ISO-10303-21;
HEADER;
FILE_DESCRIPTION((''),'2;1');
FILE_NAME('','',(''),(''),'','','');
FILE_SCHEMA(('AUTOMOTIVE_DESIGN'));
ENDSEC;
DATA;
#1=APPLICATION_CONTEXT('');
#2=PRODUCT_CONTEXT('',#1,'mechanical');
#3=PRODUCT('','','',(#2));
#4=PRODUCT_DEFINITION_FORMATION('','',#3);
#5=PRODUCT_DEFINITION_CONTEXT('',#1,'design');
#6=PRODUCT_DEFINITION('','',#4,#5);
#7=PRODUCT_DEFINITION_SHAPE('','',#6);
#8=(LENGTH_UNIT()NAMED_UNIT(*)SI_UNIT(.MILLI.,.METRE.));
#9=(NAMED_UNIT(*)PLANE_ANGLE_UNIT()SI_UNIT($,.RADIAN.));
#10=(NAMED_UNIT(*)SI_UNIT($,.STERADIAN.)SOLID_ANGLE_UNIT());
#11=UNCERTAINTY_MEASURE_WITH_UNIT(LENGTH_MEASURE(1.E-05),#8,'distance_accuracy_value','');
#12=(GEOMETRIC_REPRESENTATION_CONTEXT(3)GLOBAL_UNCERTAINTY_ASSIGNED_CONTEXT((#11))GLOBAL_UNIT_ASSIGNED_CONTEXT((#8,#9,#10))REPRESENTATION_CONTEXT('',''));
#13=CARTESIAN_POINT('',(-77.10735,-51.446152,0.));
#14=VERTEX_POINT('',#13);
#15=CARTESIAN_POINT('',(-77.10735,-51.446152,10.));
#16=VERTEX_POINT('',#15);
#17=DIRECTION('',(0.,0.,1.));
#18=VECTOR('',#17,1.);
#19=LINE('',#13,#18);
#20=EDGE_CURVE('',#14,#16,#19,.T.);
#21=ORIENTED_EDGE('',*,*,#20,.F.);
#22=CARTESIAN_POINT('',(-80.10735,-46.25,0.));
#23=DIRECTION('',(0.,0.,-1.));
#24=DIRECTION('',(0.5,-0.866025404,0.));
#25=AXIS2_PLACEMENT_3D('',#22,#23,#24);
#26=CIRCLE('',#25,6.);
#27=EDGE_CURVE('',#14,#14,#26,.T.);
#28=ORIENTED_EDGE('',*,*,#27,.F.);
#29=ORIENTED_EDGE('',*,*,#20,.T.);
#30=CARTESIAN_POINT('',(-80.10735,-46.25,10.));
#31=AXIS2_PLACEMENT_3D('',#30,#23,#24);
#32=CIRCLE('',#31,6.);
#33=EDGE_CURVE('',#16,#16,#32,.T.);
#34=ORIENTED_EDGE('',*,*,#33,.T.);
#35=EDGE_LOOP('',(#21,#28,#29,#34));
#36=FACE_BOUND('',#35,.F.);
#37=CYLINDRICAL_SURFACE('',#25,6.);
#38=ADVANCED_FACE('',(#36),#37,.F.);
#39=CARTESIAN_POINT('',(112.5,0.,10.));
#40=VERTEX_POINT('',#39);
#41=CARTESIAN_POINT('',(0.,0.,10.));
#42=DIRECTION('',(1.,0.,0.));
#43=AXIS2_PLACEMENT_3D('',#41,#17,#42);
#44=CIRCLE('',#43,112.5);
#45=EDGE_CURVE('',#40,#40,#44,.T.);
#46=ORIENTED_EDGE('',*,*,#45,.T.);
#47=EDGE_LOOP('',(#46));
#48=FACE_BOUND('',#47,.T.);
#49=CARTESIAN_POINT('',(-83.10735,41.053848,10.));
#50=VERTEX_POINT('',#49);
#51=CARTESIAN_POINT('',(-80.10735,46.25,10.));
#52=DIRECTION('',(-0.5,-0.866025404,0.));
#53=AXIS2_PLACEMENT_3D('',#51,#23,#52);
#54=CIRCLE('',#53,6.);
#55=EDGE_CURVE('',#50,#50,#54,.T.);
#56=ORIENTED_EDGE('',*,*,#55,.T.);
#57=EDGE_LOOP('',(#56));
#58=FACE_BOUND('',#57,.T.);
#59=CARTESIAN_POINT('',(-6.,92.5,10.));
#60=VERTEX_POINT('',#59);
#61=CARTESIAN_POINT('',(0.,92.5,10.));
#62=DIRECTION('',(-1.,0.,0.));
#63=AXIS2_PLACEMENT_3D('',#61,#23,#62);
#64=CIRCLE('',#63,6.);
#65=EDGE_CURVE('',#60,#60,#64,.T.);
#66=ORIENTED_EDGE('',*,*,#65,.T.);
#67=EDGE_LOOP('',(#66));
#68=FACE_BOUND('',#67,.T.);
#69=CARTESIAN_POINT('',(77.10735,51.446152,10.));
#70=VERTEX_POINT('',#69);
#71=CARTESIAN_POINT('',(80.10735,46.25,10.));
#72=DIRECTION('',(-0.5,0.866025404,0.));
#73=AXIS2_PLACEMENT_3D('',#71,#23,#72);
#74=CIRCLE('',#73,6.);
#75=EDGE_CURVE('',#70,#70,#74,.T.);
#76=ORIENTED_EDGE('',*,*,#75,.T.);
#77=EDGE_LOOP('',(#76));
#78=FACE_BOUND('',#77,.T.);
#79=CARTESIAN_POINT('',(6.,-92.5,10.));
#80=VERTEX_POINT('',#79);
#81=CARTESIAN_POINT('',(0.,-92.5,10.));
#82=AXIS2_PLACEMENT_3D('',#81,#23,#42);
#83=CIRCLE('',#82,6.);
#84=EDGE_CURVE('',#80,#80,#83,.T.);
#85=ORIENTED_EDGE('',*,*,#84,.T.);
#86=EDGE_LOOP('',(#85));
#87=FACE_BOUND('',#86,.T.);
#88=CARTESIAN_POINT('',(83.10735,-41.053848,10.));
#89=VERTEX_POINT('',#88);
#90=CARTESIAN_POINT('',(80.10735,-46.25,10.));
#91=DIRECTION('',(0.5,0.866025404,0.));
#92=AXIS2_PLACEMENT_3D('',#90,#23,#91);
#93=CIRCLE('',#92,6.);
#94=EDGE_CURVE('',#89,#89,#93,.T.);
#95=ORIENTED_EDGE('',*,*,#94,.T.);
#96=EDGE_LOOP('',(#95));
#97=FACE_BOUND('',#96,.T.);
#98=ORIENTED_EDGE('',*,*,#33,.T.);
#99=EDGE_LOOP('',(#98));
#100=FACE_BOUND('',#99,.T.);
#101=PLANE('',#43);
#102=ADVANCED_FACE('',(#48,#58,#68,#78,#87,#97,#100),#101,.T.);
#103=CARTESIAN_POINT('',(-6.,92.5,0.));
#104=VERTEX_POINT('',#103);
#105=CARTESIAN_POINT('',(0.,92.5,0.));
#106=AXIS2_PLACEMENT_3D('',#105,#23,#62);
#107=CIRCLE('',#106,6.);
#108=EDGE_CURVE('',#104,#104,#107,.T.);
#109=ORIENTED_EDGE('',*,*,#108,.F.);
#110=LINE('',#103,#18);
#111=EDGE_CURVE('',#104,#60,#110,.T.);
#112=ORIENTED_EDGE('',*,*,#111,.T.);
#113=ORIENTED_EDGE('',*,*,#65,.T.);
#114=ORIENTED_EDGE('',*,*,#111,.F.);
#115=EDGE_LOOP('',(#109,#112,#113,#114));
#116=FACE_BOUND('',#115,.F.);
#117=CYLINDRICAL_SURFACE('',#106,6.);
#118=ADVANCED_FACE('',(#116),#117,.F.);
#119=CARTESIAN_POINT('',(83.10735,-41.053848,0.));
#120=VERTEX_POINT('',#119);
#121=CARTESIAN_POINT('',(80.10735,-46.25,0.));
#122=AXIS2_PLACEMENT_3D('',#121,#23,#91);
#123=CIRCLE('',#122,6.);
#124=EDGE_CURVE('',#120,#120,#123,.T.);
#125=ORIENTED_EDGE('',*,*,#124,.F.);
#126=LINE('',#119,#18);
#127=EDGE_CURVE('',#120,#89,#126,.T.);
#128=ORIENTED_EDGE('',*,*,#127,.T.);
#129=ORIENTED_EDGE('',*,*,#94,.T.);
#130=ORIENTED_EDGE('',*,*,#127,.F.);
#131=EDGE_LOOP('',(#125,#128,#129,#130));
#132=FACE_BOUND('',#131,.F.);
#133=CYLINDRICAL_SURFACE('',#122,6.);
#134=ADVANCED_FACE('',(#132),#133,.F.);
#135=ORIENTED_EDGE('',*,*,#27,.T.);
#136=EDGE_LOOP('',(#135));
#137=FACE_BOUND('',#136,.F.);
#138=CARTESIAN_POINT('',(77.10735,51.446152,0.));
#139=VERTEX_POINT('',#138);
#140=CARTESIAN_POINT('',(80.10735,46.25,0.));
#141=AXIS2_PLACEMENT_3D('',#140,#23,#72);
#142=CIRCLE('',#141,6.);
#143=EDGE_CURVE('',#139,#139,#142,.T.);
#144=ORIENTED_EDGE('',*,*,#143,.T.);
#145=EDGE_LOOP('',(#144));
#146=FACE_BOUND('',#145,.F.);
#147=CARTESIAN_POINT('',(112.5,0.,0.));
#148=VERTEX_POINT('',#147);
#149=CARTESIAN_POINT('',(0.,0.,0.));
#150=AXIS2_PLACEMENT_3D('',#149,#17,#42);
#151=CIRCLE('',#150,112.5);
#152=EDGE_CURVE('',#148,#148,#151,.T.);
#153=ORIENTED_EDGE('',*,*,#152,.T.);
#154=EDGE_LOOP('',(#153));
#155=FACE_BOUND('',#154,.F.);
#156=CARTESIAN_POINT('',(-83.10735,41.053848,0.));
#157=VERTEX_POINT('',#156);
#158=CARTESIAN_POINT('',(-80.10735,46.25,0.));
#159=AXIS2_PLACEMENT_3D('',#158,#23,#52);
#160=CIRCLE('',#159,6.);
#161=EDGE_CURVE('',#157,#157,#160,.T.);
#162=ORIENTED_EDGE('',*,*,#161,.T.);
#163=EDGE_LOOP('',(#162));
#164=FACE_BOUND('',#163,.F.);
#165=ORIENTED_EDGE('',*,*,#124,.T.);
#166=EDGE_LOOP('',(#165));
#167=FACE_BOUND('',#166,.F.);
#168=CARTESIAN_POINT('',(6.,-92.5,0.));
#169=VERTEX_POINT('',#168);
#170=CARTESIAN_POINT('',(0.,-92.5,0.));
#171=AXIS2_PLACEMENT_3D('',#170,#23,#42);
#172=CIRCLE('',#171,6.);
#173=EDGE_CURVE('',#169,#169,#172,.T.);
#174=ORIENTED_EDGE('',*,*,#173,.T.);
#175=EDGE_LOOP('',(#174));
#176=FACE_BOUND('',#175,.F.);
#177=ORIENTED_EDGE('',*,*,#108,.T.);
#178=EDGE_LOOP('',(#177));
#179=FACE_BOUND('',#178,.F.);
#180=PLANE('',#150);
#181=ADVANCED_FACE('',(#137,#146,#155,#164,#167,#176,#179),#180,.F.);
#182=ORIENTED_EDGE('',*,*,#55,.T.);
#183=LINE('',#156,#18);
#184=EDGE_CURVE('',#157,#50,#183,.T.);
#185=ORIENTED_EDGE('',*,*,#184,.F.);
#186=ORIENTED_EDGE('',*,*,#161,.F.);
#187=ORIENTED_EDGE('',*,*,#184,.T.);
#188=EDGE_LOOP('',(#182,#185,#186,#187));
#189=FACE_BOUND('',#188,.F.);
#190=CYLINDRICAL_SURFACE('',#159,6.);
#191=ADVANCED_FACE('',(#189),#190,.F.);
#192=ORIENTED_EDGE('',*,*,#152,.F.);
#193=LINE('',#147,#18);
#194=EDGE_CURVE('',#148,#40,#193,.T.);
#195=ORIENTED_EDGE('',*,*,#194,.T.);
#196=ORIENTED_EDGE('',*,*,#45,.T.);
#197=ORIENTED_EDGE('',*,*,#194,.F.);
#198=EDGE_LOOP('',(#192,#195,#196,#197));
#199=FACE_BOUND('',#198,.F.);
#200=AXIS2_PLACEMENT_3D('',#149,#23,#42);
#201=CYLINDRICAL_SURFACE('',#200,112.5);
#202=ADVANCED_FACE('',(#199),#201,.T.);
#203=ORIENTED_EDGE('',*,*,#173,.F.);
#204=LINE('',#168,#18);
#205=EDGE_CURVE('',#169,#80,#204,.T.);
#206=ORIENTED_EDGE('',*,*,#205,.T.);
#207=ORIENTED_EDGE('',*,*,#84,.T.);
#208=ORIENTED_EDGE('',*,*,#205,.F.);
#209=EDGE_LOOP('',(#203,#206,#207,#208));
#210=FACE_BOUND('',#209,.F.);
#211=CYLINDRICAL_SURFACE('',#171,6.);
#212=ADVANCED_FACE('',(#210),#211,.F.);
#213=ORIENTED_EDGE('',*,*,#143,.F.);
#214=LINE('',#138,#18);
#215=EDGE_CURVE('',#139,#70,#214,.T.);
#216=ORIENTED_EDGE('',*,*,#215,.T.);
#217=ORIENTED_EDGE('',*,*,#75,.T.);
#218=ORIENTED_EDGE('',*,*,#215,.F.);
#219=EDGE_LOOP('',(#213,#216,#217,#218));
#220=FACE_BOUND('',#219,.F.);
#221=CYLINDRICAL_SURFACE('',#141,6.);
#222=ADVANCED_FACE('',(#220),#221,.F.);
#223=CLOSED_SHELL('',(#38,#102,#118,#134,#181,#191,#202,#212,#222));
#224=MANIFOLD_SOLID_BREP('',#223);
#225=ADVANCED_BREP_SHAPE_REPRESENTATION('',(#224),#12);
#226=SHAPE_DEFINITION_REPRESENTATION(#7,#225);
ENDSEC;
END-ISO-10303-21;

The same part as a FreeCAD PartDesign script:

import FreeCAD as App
import Part
import Sketcher
from FreeCAD import Vector

doc = App.newDocument("Part")
body = doc.addObject("PartDesign::Body", "Body")

sketch1 = doc.addObject("Sketcher::SketchObject", "Sketch")
body.addObject(sketch1)
sketch1.AttachmentSupport = (doc.XY_Plane, [""])
sketch1.MapMode = "FlatFace"
sketch1.addGeometry(Part.Circle(Vector(0, 0, 0), Vector(0, 0, 1), 112), False)
sketch1.addConstraint([
    Sketcher.Constraint("Coincident", 0, 3, -1, 1),
    Sketcher.Constraint("Diameter", 0, 225.0),
])
pad1 = doc.addObject("PartDesign::Pad", "Pad")
body.addObject(pad1)
pad1.Profile = sketch1
pad1.Length = 10

sketch2 = doc.addObject("Sketcher::SketchObject", "Sketch001")
body.addObject(sketch2)
sketch2.AttachmentSupport = (doc.XY_Plane, [""])
sketch2.MapMode = "FlatFace"
sketch2.addGeometry(Part.Circle(Vector(0, 92, 0), Vector(0, 0, 1), 6), False)
sketch2.addConstraint([
    Sketcher.Constraint("PointOnObject", 0, 3, -2),
    Sketcher.Constraint("Diameter", 0, 12.0),
    Sketcher.Constraint("DistanceY", -1, 1, 0, 3, 92.5),
])
pocket1 = doc.addObject("PartDesign::Pocket", "Pocket")
body.addObject(pocket1)
pocket1.Profile = sketch2
pocket1.Type = "ThroughAll"
pocket1.Midplane = True
doc.recompute()

polarpattern = doc.addObject("PartDesign::PolarPattern", "PolarPattern")
body.addObject(polarpattern)
polarpattern.Originals = [pocket1]
polarpattern.Axis = (doc.Z_Axis, [""])
polarpattern.Angle = 360
polarpattern.Occurrences = 6
body.Tip = polarpattern

doc.recompute()
